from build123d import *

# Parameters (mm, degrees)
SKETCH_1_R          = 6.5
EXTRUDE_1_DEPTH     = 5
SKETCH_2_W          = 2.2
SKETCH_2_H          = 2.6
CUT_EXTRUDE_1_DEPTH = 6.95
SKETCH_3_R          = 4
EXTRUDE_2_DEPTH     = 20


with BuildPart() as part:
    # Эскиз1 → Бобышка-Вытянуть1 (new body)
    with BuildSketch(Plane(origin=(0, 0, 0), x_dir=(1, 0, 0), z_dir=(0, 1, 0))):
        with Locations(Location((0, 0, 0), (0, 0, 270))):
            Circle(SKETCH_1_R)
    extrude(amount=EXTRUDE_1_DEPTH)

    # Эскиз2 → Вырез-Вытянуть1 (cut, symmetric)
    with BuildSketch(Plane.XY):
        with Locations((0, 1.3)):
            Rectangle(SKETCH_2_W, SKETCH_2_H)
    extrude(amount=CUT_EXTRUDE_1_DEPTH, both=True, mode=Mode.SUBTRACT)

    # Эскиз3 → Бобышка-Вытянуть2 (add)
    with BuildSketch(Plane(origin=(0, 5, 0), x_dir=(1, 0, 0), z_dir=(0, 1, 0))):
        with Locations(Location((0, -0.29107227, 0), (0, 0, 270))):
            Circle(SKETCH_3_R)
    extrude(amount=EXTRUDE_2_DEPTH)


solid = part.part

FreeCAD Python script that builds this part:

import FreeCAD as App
import Part
import Sketcher

V = App.Vector
Q = App.Units.Quantity

doc = App.newDocument("Part")
params = doc.addObject("Spreadsheet::Sheet", "Params")
for row, (alias, value) in enumerate([
    ("sketch1_diameter", "13 mm"),
    ("pad1_length", "5 mm"),
    ("sketch2_width", "2.2 mm"),
    ("sketch2_height", "2.6 mm"),
    ("pocket1_length", "13.9 mm"),
    ("sketch3_diameter", "8 mm"),
    ("pad2_length", "20 mm"),
], start=1):
    params.set(f"A{row}", alias)
    params.set(f"B{row}", "=" + value)
    params.setAlias(f"B{row}", alias)

body = doc.addObject("PartDesign::Body", "Body")

# Sketch on XZ plane
sketch1 = body.newObject("Sketcher::SketchObject", "Sketch")
sketch1.AttachmentSupport = (doc.getObject("XZ_Plane"), [""])
sketch1.MapMode = "FlatFace"
sketch1.addGeometry(Part.Circle(V(0, 0, 0), V(0, 0, 1), 6), False)
sketch1.addConstraint([
    Sketcher.Constraint("Coincident", 0, 3, -1, 1),
    Sketcher.Constraint("Diameter", 0, Q("13 mm")),
])
sketch1.setExpression("Constraints[1]", "Params.sketch1_diameter")
pad1 = body.newObject("PartDesign::Pad", "Pad")
pad1.Profile = sketch1
pad1.setExpression("Length", "Params.pad1_length")
pad1.Reversed = True

# Sketch on XY plane
sketch2 = body.newObject("Sketcher::SketchObject", "Sketch001")
sketch2.AttachmentSupport = (doc.getObject("XY_Plane"), [""])
sketch2.MapMode = "FlatFace"
sketch2.addGeometry([
    Part.LineSegment(V(-1.1, 2.6, 0), V(-1.1, 0, 0)),
    Part.LineSegment(V(-1.1, 0, 0), V(1.1, 0, 0)),
    Part.LineSegment(V(1.1, 0, 0), V(1.1, 2.6, 0)),
    Part.LineSegment(V(1.1, 2.6, 0), V(-1.1, 2.6, 0)),
], False)
sketch2.addConstraint([
    Sketcher.Constraint("Coincident", 0, 2, 1, 1),
    Sketcher.Constraint("Coincident", 1, 2, 2, 1),
    Sketcher.Constraint("Coincident", 2, 2, 3, 1),
    Sketcher.Constraint("Coincident", 3, 2, 0, 1),
    Sketcher.Constraint("Vertical", 0),
    Sketcher.Constraint("Horizontal", 1),
    Sketcher.Constraint("Vertical", 2),
    Sketcher.Constraint("Horizontal", 3),
    Sketcher.Constraint("Symmetric", 0, 2, 1, 2, -1, 1),
    Sketcher.Constraint("DistanceX", 1, 1, 1, 2, Q("2.2 mm")),
    Sketcher.Constraint("DistanceY", 0, 2, 0, 1, Q("2.6 mm")),
])
sketch2.setExpression("Constraints[9]", "Params.sketch2_width")
sketch2.setExpression("Constraints[10]", "Params.sketch2_height")
pocket1 = body.newObject("PartDesign::Pocket", "Pocket")
pocket1.Profile = sketch2
pocket1.setExpression("Length", "Params.pocket1_length")
pocket1.Midplane = True

# Sketch on XZ plane
sketch3 = body.newObject("Sketcher::SketchObject", "Sketch002")
sketch3.AttachmentSupport = (doc.getObject("XZ_Plane"), [""])
sketch3.MapMode = "FlatFace"
sketch3.AttachmentOffset = App.Placement(V(0, 0, -5), App.Rotation())
sketch3.addGeometry(Part.Circle(V(0, 0.3, 0), V(0, 0, 1), 4), False)
sketch3.addConstraint([
    Sketcher.Constraint("PointOnObject", 0, 3, -2),
    Sketcher.Constraint("Diameter", 0, Q("8 mm")),
    Sketcher.Constraint("DistanceY", -1, 1, 0, 3, Q("0.291072 mm")),
])
sketch3.setExpression("Constraints[1]", "Params.sketch3_diameter")
pad2 = body.newObject("PartDesign::Pad", "Pad001")
pad2.Profile = sketch3
pad2.setExpression("Length", "Params.pad2_length")
pad2.Reversed = True

doc.recompute()
